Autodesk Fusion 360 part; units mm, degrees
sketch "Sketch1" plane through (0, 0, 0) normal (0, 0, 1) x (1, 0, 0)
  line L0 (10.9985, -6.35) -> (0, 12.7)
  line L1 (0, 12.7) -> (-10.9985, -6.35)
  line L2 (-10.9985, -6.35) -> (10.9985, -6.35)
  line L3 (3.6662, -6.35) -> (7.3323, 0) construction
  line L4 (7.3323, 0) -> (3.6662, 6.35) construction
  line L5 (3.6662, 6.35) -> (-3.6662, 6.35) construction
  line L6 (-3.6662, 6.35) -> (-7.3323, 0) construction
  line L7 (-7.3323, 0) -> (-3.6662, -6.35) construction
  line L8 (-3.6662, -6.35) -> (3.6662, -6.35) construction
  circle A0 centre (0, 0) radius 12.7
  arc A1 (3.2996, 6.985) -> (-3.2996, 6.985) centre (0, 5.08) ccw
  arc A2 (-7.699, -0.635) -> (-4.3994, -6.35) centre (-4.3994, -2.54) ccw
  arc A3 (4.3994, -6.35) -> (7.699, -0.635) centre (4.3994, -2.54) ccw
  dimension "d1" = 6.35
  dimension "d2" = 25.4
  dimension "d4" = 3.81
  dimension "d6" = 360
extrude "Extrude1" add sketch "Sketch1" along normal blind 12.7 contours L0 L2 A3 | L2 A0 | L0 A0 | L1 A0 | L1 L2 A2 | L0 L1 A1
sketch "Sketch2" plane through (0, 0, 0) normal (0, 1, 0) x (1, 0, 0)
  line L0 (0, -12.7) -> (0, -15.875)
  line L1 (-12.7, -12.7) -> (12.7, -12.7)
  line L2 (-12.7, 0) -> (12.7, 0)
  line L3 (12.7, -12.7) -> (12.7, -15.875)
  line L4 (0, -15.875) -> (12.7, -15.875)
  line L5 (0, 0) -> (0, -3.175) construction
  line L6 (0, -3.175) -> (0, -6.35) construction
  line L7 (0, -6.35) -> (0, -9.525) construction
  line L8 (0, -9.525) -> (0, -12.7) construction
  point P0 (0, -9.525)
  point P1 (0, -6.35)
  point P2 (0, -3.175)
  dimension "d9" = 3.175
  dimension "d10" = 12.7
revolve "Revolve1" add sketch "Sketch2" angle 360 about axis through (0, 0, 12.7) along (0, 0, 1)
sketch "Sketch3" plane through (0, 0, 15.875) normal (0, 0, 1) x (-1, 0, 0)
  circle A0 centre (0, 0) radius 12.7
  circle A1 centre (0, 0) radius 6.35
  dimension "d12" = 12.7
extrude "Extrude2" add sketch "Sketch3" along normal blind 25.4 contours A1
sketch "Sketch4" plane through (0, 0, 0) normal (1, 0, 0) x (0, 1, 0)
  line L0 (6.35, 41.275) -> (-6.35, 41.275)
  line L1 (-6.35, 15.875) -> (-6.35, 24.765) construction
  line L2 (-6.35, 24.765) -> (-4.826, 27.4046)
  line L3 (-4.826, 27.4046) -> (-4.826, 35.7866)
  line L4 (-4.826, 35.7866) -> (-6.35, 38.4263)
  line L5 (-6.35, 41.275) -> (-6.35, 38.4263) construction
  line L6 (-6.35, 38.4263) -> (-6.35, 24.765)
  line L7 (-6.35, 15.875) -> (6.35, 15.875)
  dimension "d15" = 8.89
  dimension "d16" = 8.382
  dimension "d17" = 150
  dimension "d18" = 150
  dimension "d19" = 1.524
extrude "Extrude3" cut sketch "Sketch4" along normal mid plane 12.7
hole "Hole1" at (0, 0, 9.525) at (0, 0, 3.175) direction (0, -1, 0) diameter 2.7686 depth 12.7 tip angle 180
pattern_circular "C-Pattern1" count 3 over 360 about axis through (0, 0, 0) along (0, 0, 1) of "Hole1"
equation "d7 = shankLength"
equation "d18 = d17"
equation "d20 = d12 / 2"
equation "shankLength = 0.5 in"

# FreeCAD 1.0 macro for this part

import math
import FreeCAD as App
import Part
import Sketcher
from FreeCAD import Vector
Q = App.Units.Quantity


def add_polygon(sketch, points):
    """Adds a closed chain of lines whose ends are joined by coincident constraints."""
    first, n = sketch.GeometryCount, len(points)
    for a, b in zip(points, points[1:] + points[:1]):
        sketch.addGeometry(Part.LineSegment(App.Vector(*a, 0), App.Vector(*b, 0)), False)
    for i in range(n):
        sketch.addConstraint(Sketcher.Constraint("Coincident", first + i, 2, first + (i + 1) % n, 1))

doc = App.newDocument("Part")
body = doc.addObject("PartDesign::Body", "Body")

# Sketch on XY plane
sketch1 = body.newObject("Sketcher::SketchObject", "Sketch")
sketch1.AttachmentSupport = (doc.getObject("XY_Plane"), [""])
sketch1.MapMode = "FlatFace"
sketch1.addGeometry([
    Part.Circle(Vector(0, 0, 0), Vector(0, 0, 1), 12.7),  # 0
    Part.ArcOfCircle(Part.Circle(Vector(4.4, -2.5, 0), Vector(0, 0, 1), 3.8), math.radians(-90), math.radians(30)),  # 1
    Part.LineSegment(Vector(4.4, -6.3, 0), Vector(-4.4, -6.3, 0)),  # 2
    Part.ArcOfCircle(Part.Circle(Vector(-4.4, -2.5, 0), Vector(0, 0, 1), 3.8), math.radians(150), math.radians(270)),  # 3
    Part.LineSegment(Vector(-7.7, -0.6, 0), Vector(-3.3, 7, 0)),  # 4
    Part.ArcOfCircle(Part.Circle(Vector(0, 5.1, 0), Vector(0, 0, 1), 3.8), math.radians(30), math.radians(150)),  # 5
    Part.LineSegment(Vector(3.3, 7, 0), Vector(7.7, -0.6, 0)),  # 6
], False)
sketch1.addConstraint([
    Sketcher.Constraint("Tangent", 1, 1, 2, 1),
    Sketcher.Constraint("Tangent", 2, 2, 3, 2),
    Sketcher.Constraint("Tangent", 3, 1, 4, 1),
    Sketcher.Constraint("Tangent", 4, 2, 5, 2),
    Sketcher.Constraint("Tangent", 5, 1, 6, 1),
    Sketcher.Constraint("Tangent", 6, 2, 1, 2),
    Sketcher.Constraint("Horizontal", 2),
    Sketcher.Constraint("Coincident", 0, 3, -1, 1),
    Sketcher.Constraint("Equal", 1, 3),
    Sketcher.Constraint("Equal", 3, 5),
    Sketcher.Constraint("Symmetric", 4, 2, 5, 1, -2),
    Sketcher.Constraint("Diameter", 0, Q("1 in")),
    Sketcher.Constraint("Radius", 1, Q("0.15 in")),
    Sketcher.Constraint("DistanceY", 1, 1, -1, 1, Q("0.25 in")),
    Sketcher.Constraint("Angle", 4, Q("60 deg")),
    Sketcher.Constraint("DistanceY", -1, 1, 5, 3, Q("0.2 in")),
])
pad1 = body.newObject("PartDesign::Pad", "Pad")
pad1.Profile = sketch1
pad1.Length = Q("0.5 in")

# Sketch on XZ plane
sketch2 = body.newObject("Sketcher::SketchObject", "Sketch001")
sketch2.AttachmentSupport = (doc.getObject("XZ_Plane"), [""])
sketch2.MapMode = "FlatFace"
add_polygon(sketch2, [(12.7, 12.7), (0, 12.7), (0, 15.9), (12.7, 15.9)])  # lines 0-3
sketch2.addConstraint([
    Sketcher.Constraint("Horizontal", 0),
    Sketcher.Constraint("Vertical", 1),
    Sketcher.Constraint("Horizontal", 2),
    Sketcher.Constraint("Vertical", 3),
    Sketcher.Constraint("PointOnObject", 0, 2, -2),
    Sketcher.Constraint("DistanceX", 0, 2, 0, 1, Q("0.5 in")),
    Sketcher.Constraint("DistanceY", -1, 1, 0, 2, Q("0.5 in")),
    Sketcher.Constraint("DistanceY", 1, 1, 1, 2, Q("0.125 in")),
])
revolution = body.newObject("PartDesign::Revolution", "Revolution")
revolution.Profile = sketch2
revolution.ReferenceAxis = (sketch2, ["V_Axis"])
revolution.Angle = 360

# Sketch on XY plane
sketch3 = body.newObject("Sketcher::SketchObject", "Sketch002")
sketch3.AttachmentSupport = (doc.getObject("XY_Plane"), [""])
sketch3.MapMode = "FlatFace"
sketch3.AttachmentOffset = App.Placement(Vector(0, 0, 0.625 * 25.4), App.Rotation())
sketch3.addGeometry(Part.Circle(Vector(0, 0, 0), Vector(0, 0, 1), 6), False)
sketch3.addConstraint([
    Sketcher.Constraint("Coincident", 0, 3, -1, 1),
    Sketcher.Constraint("Diameter", 0, Q("0.5 in")),
])
pad2 = body.newObject("PartDesign::Pad", "Pad001")
pad2.Profile = sketch3
pad2.Length = Q("1 in")

# Sketch on YZ plane
sketch4 = body.newObject("Sketcher::SketchObject", "Sketch003")
sketch4.AttachmentSupport = (doc.getObject("YZ_Plane"), [""])
sketch4.MapMode = "FlatFace"
add_polygon(sketch4, [(-6.3, 38.4), (-6.3, 24.8), (-4.8, 27.4), (-4.8, 35.8)])  # lines 0-3
sketch4.addConstraint([
    Sketcher.Constraint("Vertical", 0),
    Sketcher.Constraint("Vertical", 2),
    Sketcher.Constraint("Equal", 1, 3),
    Sketcher.Constraint("DistanceY", 2, 1, 2, 2, Q("0.33 in")),
    Sketcher.Constraint("DistanceX", 0, 2, 1, 2, Q("0.06 in")),
    Sketcher.Constraint("Angle", 1, Q("59.9996 deg")),
    Sketcher.Constraint("DistanceX", 0, 2, -1, 1, Q("0.25 in")),
    Sketcher.Constraint("DistanceY", -1, 1, 0, 2, Q("0.975 in")),
])
pocket1 = body.newObject("PartDesign::Pocket", "Pocket")
pocket1.Profile = sketch4
pocket1.Length = Q("0.5 in")
pocket1.Midplane = True

# Sketch on XZ plane
sketch5 = body.newObject("Sketcher::SketchObject", "Sketch004")
sketch5.AttachmentSupport = (doc.getObject("XZ_Plane"), [""])
sketch5.MapMode = "FlatFace"
sketch5.addGeometry([
    Part.Circle(Vector(0, 9.5, 0), Vector(0, 0, 1), 1.4),
    Part.Circle(Vector(0, 3.2, 0), Vector(0, 0, 1), 1.4),
], False)
sketch5.addConstraint([
    Sketcher.Constraint("Equal", 0, 1),
    Sketcher.Constraint("PointOnObject", 0, 3, -2),
    Sketcher.Constraint("PointOnObject", 1, 3, -2),
    Sketcher.Constraint("Diameter", 0, Q("0.109 in")),
    Sketcher.Constraint("DistanceY", 1, 3, 0, 3, Q("0.25 in")),
    Sketcher.Constraint("DistanceY", -1, 1, 0, 3, Q("0.375 in")),
])
doc.recompute()
hole = body.newObject("PartDesign::Hole", "Hole")
hole.Profile = sketch5
hole.ThreadType = "None"
hole.Diameter = Q("0.109 in")
hole.DepthType = "Dimension"
hole.Depth = Q("0.5 in")
hole.DrillPoint = "Flat"
hole.Reversed = True
doc.recompute()

polarpattern = body.newObject("PartDesign::PolarPattern", "PolarPattern")
polarpattern.Originals = [hole]
polarpattern.Axis = (doc.getObject("Z_Axis"), [""])
polarpattern.Angle = 360
polarpattern.Occurrences = 3
body.Tip = polarpattern

doc.recompute()
